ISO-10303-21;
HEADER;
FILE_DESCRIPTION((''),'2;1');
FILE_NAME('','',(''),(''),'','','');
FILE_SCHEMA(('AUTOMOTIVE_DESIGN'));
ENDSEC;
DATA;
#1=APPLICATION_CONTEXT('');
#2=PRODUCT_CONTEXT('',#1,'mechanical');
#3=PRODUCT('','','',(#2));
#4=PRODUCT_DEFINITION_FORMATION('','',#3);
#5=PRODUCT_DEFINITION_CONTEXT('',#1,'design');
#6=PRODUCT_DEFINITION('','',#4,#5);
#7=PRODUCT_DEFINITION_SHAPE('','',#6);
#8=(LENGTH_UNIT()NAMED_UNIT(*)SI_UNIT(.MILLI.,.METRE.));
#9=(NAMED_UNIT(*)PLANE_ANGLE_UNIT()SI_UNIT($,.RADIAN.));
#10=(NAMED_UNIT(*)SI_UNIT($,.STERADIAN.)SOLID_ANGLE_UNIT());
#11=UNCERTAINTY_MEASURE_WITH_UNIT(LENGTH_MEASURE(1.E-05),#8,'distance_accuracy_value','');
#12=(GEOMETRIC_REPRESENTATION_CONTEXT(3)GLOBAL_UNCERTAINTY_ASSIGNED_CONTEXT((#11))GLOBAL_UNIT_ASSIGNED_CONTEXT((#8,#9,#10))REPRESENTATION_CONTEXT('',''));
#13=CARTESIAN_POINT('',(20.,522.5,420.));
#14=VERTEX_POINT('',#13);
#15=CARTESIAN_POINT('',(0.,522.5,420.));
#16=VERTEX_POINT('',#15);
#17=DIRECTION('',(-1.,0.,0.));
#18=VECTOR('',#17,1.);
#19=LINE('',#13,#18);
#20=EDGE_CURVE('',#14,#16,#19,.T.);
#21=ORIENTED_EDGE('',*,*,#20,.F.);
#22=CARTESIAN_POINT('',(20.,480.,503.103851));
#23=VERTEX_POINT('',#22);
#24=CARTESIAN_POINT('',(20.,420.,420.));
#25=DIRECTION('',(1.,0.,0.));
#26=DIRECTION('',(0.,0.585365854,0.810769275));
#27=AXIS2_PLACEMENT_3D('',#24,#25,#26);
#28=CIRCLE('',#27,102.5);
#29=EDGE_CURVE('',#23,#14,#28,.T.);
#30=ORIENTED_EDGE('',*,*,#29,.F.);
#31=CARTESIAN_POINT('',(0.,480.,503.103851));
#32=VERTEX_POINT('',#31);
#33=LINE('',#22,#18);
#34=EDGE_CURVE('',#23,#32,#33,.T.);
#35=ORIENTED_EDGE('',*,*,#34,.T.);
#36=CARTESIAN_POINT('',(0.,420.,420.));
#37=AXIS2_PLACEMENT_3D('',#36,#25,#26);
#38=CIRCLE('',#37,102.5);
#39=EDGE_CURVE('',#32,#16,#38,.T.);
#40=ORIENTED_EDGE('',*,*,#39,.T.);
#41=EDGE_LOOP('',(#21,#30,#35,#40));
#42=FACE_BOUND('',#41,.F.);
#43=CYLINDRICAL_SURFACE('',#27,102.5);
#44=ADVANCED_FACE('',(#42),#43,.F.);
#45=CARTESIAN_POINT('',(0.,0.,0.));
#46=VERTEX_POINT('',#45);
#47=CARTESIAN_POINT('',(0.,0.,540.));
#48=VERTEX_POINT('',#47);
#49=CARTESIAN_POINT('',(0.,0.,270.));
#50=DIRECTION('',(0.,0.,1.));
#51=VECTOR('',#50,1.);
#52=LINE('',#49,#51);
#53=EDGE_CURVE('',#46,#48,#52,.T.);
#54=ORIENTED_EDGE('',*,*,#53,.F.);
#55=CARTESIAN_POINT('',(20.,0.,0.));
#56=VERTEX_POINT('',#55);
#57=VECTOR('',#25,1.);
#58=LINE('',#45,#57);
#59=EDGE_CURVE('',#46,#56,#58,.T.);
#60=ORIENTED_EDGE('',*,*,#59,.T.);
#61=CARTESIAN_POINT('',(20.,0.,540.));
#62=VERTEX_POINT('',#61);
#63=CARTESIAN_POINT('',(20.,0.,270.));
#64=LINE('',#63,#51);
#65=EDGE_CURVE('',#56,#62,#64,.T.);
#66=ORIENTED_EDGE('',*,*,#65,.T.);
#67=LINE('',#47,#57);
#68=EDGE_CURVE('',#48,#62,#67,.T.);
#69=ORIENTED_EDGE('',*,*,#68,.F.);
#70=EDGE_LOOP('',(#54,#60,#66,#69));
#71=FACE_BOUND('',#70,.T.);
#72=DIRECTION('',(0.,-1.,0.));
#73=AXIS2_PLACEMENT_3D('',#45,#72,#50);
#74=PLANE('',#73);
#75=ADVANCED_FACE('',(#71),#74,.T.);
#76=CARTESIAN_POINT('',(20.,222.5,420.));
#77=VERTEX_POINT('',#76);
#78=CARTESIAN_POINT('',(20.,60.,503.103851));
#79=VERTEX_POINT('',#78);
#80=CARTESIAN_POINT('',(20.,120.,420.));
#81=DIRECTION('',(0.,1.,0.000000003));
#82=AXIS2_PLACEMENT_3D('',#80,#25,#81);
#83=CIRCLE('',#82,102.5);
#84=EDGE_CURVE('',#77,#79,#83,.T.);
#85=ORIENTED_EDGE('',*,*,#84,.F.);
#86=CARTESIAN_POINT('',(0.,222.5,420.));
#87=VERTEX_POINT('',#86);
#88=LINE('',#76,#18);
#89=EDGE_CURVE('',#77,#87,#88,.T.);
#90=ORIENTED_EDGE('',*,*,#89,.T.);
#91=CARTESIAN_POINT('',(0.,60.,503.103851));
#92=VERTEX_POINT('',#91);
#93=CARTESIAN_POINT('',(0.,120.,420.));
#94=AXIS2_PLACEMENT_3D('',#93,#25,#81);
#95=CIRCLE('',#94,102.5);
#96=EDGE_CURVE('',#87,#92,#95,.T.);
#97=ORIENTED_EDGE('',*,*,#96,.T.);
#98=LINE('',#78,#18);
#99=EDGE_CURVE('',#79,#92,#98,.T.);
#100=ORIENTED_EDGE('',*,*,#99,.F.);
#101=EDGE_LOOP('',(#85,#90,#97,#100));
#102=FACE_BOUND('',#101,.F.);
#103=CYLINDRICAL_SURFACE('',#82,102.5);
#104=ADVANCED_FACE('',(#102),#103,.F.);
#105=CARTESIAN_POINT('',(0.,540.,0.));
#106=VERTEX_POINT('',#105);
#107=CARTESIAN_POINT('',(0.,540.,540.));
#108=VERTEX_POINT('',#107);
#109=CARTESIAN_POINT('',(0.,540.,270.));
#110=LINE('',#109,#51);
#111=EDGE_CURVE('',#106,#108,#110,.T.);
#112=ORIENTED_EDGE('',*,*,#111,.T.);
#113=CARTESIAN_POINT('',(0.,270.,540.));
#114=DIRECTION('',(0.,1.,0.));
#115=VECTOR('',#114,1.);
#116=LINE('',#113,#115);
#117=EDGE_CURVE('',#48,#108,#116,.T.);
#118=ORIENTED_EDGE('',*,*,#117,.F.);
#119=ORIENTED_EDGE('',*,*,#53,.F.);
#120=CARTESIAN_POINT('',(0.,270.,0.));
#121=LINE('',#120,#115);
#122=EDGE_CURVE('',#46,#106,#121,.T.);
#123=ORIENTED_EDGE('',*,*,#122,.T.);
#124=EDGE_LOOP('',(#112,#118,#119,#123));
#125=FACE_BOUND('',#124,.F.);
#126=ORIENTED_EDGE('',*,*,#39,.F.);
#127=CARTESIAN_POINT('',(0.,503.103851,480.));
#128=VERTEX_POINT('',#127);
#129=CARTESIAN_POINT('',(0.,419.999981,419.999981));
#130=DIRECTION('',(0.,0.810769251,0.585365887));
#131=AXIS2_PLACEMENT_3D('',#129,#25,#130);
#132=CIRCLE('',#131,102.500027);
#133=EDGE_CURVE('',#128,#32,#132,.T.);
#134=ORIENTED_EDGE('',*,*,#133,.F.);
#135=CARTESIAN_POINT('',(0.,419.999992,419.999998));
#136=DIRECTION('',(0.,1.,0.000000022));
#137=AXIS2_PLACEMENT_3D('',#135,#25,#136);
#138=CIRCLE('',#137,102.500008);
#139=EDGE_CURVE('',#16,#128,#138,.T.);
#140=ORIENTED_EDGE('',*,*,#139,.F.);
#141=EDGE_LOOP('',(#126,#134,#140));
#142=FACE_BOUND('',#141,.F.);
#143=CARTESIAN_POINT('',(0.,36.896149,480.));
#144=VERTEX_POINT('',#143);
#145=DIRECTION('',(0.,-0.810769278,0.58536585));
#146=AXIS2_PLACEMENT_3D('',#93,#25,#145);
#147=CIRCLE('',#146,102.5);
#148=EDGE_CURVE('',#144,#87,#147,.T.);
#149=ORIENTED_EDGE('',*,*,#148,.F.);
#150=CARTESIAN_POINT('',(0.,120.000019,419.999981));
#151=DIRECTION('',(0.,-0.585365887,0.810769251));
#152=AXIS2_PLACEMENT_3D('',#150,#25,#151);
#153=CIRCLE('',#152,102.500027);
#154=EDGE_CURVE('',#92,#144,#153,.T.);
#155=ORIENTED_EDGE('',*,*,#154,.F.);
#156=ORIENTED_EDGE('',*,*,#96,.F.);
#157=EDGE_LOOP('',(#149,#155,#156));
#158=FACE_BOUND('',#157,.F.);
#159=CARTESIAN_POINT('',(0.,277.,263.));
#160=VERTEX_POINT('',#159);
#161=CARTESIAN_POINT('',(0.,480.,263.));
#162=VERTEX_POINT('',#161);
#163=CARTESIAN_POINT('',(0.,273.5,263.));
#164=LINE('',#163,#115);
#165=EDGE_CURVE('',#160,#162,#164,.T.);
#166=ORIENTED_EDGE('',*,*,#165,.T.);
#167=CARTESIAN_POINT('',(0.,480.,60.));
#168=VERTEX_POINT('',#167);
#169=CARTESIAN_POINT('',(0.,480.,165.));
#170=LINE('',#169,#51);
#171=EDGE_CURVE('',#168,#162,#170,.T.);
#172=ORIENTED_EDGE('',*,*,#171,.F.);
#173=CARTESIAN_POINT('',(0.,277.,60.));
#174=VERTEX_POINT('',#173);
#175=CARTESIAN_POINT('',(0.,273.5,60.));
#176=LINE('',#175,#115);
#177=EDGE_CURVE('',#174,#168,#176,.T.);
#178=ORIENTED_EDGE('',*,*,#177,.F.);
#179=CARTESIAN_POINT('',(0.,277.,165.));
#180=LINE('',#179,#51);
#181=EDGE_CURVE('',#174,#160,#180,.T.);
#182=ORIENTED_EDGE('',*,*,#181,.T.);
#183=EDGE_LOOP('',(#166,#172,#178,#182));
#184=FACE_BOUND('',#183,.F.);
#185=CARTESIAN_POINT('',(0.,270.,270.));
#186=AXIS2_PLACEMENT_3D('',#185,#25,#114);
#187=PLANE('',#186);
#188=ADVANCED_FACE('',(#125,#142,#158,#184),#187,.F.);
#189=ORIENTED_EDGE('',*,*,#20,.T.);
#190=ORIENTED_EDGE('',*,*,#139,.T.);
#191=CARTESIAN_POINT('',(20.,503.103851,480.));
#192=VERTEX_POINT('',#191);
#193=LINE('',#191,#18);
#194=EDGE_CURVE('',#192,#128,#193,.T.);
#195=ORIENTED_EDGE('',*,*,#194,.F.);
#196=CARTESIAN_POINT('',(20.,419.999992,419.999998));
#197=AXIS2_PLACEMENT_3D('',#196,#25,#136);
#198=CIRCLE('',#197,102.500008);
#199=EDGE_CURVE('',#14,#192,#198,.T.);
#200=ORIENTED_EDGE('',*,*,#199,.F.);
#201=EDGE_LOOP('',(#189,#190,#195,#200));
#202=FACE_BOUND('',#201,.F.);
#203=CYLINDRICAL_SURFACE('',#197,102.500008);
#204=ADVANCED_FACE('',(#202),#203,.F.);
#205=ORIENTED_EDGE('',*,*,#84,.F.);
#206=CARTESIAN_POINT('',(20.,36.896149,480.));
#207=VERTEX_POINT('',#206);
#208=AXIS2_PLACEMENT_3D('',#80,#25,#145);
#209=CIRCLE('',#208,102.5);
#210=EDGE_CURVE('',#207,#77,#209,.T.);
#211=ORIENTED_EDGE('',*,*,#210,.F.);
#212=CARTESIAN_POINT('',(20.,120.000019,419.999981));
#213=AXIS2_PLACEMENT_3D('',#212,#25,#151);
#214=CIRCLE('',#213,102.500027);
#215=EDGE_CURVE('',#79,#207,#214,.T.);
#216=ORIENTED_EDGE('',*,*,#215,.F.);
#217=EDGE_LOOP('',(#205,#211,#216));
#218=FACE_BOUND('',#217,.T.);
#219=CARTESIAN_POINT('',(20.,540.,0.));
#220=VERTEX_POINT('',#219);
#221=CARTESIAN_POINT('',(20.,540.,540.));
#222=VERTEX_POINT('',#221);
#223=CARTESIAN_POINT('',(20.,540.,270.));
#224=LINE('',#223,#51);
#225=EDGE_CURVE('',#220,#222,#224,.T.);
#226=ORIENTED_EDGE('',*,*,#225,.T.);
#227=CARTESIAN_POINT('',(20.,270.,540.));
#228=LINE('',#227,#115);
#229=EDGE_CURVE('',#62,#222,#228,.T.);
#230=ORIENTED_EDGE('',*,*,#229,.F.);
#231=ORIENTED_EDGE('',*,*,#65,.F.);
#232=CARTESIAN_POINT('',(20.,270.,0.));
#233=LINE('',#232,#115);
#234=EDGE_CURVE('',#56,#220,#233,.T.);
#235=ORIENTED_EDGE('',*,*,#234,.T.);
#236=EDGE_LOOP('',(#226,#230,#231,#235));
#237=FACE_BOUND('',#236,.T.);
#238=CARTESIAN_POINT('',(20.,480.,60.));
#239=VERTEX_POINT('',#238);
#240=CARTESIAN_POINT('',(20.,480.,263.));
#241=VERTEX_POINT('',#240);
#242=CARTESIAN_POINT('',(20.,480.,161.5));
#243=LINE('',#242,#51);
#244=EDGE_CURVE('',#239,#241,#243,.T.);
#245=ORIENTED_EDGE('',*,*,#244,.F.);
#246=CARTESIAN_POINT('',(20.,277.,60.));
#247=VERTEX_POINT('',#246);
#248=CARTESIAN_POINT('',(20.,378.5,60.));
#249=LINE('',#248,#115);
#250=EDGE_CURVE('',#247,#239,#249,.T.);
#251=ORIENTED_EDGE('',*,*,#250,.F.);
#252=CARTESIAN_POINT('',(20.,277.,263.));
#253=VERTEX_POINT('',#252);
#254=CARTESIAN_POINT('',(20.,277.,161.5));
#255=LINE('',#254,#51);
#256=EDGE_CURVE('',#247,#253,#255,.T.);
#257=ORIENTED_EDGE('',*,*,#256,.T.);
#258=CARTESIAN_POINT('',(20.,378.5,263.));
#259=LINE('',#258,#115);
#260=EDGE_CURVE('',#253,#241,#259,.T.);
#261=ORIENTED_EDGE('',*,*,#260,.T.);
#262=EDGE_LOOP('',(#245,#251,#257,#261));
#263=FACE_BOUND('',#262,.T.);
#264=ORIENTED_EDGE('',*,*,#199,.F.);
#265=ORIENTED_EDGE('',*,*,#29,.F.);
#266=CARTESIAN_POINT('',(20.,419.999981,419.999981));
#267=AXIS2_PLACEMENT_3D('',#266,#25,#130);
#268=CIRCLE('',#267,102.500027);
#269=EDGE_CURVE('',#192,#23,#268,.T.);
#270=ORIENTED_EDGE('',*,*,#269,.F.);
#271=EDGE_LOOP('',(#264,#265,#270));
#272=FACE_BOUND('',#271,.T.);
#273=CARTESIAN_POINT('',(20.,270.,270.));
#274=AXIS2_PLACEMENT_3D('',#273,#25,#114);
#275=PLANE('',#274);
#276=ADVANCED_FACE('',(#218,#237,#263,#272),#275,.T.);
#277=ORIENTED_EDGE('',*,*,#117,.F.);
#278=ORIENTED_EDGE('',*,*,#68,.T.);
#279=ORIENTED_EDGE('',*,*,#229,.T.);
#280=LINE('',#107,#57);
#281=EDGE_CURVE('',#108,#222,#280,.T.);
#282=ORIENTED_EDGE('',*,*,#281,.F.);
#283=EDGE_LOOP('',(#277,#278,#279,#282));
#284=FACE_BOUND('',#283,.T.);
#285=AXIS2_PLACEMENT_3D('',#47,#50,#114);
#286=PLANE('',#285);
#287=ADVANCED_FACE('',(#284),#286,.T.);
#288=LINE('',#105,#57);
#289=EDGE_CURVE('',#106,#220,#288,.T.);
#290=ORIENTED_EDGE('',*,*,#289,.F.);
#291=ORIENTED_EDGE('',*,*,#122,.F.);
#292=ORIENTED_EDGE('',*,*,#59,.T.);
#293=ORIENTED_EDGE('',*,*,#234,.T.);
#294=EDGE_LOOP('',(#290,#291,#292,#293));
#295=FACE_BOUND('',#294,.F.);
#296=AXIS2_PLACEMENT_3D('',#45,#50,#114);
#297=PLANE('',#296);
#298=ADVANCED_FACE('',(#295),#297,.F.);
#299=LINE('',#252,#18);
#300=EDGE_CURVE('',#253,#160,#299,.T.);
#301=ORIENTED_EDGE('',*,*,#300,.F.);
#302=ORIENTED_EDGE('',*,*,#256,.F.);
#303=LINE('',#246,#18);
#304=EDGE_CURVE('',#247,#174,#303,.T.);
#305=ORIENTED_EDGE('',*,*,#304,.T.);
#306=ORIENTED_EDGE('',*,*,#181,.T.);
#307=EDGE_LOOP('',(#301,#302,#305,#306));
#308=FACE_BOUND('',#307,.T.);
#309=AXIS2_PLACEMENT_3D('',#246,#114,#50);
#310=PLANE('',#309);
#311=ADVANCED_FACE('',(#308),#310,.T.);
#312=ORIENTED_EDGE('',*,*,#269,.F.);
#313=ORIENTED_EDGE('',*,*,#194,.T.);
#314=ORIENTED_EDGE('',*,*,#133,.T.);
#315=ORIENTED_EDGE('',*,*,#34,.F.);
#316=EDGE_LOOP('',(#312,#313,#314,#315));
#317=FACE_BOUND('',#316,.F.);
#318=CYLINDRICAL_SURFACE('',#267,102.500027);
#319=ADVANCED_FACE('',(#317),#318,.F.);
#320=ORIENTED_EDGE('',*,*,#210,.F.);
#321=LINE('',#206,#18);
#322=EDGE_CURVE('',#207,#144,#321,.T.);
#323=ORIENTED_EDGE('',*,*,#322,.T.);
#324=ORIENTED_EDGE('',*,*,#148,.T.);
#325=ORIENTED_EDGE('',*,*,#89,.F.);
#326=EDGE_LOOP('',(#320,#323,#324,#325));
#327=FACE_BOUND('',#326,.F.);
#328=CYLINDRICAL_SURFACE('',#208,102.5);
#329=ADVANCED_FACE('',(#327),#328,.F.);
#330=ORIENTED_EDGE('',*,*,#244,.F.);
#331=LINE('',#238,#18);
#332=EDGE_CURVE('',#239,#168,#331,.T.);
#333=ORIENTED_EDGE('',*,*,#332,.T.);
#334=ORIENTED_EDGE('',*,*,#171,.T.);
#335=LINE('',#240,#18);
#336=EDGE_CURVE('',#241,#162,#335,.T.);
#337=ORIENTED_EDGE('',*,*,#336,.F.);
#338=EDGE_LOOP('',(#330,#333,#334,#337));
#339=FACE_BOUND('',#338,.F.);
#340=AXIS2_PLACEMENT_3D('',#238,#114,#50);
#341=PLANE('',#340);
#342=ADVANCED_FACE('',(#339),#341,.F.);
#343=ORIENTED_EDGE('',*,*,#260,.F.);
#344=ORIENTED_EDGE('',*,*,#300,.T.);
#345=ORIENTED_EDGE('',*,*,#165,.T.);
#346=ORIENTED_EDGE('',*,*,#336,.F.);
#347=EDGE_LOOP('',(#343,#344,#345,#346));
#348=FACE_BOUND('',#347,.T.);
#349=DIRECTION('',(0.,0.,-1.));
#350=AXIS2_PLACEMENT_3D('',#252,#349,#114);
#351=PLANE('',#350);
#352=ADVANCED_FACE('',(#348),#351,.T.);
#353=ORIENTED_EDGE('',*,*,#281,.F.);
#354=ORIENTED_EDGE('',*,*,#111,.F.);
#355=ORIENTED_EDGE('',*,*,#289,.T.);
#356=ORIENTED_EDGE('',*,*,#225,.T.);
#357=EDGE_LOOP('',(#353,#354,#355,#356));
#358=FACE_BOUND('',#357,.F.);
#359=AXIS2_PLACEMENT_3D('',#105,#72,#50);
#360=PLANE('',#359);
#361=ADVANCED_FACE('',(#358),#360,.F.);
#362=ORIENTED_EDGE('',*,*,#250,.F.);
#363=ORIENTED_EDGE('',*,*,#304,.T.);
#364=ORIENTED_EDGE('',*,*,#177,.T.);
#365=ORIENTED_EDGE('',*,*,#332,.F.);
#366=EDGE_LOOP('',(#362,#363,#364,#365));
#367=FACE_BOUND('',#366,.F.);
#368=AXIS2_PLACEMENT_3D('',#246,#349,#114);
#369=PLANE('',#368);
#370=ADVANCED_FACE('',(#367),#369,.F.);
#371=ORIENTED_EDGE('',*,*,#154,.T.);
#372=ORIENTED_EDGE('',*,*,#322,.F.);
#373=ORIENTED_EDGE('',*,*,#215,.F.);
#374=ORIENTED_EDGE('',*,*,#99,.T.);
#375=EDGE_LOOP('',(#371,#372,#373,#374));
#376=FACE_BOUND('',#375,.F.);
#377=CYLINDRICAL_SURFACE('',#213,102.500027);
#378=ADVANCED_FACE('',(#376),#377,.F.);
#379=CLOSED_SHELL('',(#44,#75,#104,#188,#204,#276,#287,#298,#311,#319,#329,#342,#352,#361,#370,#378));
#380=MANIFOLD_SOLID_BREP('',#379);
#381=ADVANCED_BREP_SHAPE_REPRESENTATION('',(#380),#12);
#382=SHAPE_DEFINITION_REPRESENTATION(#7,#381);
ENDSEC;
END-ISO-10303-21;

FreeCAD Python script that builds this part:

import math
import FreeCAD as App
import Part
import Sketcher
from FreeCAD import Vector

doc = App.newDocument("Part")
body = doc.addObject("PartDesign::Body", "Body")

# Sketch on YZ plane
sketch1 = body.newObject("Sketcher::SketchObject", "Sketch")
sketch1.AttachmentSupport = (doc.getObject("YZ_Plane"), [""])
sketch1.MapMode = "FlatFace"
sketch1.addGeometry([
    Part.LineSegment(Vector(0, 540, 0), Vector(0, 0, 0)),
    Part.LineSegment(Vector(0, 0, 0), Vector(540, 0, 0)),
    Part.LineSegment(Vector(540, 0, 0), Vector(540, 540, 0)),
    Part.LineSegment(Vector(540, 540, 0), Vector(0, 540, 0)),
], False)
sketch1.addConstraint([
    Sketcher.Constraint("Coincident", 0, 2, 1, 1),
    Sketcher.Constraint("Coincident", 1, 2, 2, 1),
    Sketcher.Constraint("Coincident", 2, 2, 3, 1),
    Sketcher.Constraint("Coincident", 3, 2, 0, 1),
    Sketcher.Constraint("Vertical", 0),
    Sketcher.Constraint("Horizontal", 1),
    Sketcher.Constraint("Vertical", 2),
    Sketcher.Constraint("Horizontal", 3),
    Sketcher.Constraint("Coincident", 0, 2, -1, 1),
    Sketcher.Constraint("Equal", 3, 0),
    Sketcher.Constraint("DistanceX", 1, 1, 1, 2, 540.0),
])
pad1 = body.newObject("PartDesign::Pad", "Pad")
pad1.Profile = sketch1
pad1.Length = 20

# Sketch on YZ plane
sketch2 = body.newObject("Sketcher::SketchObject", "Sketch001")
sketch2.AttachmentSupport = (doc.getObject("YZ_Plane"), [""])
sketch2.MapMode = "FlatFace"
sketch2.AttachmentOffset = App.Placement(Vector(0, 0, 20), App.Rotation())
sketch2.addGeometry([
    Part.ArcOfCircle(Part.Circle(Vector(120.000019, 419.999981, 0), Vector(0, 0, 1), 102.500027), math.radians(125.828842), math.radians(144.171158)),  # 0
    Part.ArcOfCircle(Part.Circle(Vector(120, 420, 0), Vector(0, 0, 1), 102.5), math.radians(144.17116), math.radians(360)),  # 1
    Part.ArcOfCircle(Part.Circle(Vector(120, 420, 0), Vector(0, 0, 1), 102.5), math.radians(0), math.radians(125.82884)),  # 2
    Part.ArcOfCircle(Part.Circle(Vector(419.999992, 419.999998, 0), Vector(0, 0, 1), 102.500008), math.radians(0.000001), math.radians(35.828838)),  # 3
    Part.ArcOfCircle(Part.Circle(Vector(419.999981, 419.999981, 0), Vector(0, 0, 1), 102.500027), math.radians(35.828842), math.radians(54.171158)),  # 4
    Part.ArcOfCircle(Part.Circle(Vector(420, 420, 0), Vector(0, 0, 1), 102.5), math.radians(54.17116), math.radians(360)),  # 5
    Part.LineSegment(Vector(277, 263, 0), Vector(277, 60, 0)),  # 6
    Part.LineSegment(Vector(277, 60, 0), Vector(480, 60, 0)),  # 7
    Part.LineSegment(Vector(480, 60, 0), Vector(480, 263, 0)),  # 8
    Part.LineSegment(Vector(480, 263, 0), Vector(277, 263, 0)),  # 9
], False)
sketch2.addConstraint([
    Sketcher.Constraint("Coincident", 0, 2, 1, 1),
    Sketcher.Constraint("Coincident", 1, 2, 2, 1),
    Sketcher.Constraint("Coincident", 2, 2, 0, 1),
    Sketcher.Constraint("Coincident", 3, 2, 4, 1),
    Sketcher.Constraint("Coincident", 4, 2, 5, 1),
    Sketcher.Constraint("Coincident", 5, 2, 3, 1),
    Sketcher.Constraint("Coincident", 6, 2, 7, 1),
    Sketcher.Constraint("Coincident", 7, 2, 8, 1),
    Sketcher.Constraint("Coincident", 8, 2, 9, 1),
    Sketcher.Constraint("Coincident", 9, 2, 6, 1),
    Sketcher.Constraint("Vertical", 6),
    Sketcher.Constraint("Horizontal", 7),
    Sketcher.Constraint("Vertical", 8),
    Sketcher.Constraint("Horizontal", 9),
    Sketcher.Constraint("Coincident", 2, 3, 1, 3),
    Sketcher.Constraint("Coincident", 5, 3, 3, 3),
    Sketcher.Constraint("Radius", 1, 102.5),
    Sketcher.Constraint("Radius", 5, 102.5),
    Sketcher.Constraint("DistanceX", 7, 1, 7, 2, 203.0),
    Sketcher.Constraint("DistanceY", 6, 2, 6, 1, 203.0),
    Sketcher.Constraint("DistanceX", -1, 1, 1, 3, 120.0),
    Sketcher.Constraint("DistanceY", -1, 1, 1, 3, 420.0),
    Sketcher.Constraint("DistanceX", -1, 1, 5, 3, 420.0),
    Sketcher.Constraint("DistanceY", -1, 1, 5, 3, 420.0),
    Sketcher.Constraint("DistanceY", -1, 1, 0, 2, 480.0),
    Sketcher.Constraint("DistanceY", -1, 1, 1, 2, 420.0),
    Sketcher.Constraint("DistanceX", -1, 1, 2, 2, 60.0),
    Sketcher.Constraint("DistanceY", -1, 1, 3, 2, 480.0),
    Sketcher.Constraint("DistanceX", -1, 1, 4, 2, 480.0),
    Sketcher.Constraint("DistanceY", -1, 1, 5, 2, 420.0),
    Sketcher.Constraint("DistanceX", -1, 1, 6, 2, 277.0),
    Sketcher.Constraint("DistanceY", -1, 1, 6, 2, 60.0),
    Sketcher.Constraint("Radius", 0, 102.500027),
    Sketcher.Constraint("Radius", 4, 102.500027),
])
pocket1 = body.newObject("PartDesign::Pocket", "Pocket")
pocket1.Profile = sketch2
pocket1.Length = 25

doc.recompute()
